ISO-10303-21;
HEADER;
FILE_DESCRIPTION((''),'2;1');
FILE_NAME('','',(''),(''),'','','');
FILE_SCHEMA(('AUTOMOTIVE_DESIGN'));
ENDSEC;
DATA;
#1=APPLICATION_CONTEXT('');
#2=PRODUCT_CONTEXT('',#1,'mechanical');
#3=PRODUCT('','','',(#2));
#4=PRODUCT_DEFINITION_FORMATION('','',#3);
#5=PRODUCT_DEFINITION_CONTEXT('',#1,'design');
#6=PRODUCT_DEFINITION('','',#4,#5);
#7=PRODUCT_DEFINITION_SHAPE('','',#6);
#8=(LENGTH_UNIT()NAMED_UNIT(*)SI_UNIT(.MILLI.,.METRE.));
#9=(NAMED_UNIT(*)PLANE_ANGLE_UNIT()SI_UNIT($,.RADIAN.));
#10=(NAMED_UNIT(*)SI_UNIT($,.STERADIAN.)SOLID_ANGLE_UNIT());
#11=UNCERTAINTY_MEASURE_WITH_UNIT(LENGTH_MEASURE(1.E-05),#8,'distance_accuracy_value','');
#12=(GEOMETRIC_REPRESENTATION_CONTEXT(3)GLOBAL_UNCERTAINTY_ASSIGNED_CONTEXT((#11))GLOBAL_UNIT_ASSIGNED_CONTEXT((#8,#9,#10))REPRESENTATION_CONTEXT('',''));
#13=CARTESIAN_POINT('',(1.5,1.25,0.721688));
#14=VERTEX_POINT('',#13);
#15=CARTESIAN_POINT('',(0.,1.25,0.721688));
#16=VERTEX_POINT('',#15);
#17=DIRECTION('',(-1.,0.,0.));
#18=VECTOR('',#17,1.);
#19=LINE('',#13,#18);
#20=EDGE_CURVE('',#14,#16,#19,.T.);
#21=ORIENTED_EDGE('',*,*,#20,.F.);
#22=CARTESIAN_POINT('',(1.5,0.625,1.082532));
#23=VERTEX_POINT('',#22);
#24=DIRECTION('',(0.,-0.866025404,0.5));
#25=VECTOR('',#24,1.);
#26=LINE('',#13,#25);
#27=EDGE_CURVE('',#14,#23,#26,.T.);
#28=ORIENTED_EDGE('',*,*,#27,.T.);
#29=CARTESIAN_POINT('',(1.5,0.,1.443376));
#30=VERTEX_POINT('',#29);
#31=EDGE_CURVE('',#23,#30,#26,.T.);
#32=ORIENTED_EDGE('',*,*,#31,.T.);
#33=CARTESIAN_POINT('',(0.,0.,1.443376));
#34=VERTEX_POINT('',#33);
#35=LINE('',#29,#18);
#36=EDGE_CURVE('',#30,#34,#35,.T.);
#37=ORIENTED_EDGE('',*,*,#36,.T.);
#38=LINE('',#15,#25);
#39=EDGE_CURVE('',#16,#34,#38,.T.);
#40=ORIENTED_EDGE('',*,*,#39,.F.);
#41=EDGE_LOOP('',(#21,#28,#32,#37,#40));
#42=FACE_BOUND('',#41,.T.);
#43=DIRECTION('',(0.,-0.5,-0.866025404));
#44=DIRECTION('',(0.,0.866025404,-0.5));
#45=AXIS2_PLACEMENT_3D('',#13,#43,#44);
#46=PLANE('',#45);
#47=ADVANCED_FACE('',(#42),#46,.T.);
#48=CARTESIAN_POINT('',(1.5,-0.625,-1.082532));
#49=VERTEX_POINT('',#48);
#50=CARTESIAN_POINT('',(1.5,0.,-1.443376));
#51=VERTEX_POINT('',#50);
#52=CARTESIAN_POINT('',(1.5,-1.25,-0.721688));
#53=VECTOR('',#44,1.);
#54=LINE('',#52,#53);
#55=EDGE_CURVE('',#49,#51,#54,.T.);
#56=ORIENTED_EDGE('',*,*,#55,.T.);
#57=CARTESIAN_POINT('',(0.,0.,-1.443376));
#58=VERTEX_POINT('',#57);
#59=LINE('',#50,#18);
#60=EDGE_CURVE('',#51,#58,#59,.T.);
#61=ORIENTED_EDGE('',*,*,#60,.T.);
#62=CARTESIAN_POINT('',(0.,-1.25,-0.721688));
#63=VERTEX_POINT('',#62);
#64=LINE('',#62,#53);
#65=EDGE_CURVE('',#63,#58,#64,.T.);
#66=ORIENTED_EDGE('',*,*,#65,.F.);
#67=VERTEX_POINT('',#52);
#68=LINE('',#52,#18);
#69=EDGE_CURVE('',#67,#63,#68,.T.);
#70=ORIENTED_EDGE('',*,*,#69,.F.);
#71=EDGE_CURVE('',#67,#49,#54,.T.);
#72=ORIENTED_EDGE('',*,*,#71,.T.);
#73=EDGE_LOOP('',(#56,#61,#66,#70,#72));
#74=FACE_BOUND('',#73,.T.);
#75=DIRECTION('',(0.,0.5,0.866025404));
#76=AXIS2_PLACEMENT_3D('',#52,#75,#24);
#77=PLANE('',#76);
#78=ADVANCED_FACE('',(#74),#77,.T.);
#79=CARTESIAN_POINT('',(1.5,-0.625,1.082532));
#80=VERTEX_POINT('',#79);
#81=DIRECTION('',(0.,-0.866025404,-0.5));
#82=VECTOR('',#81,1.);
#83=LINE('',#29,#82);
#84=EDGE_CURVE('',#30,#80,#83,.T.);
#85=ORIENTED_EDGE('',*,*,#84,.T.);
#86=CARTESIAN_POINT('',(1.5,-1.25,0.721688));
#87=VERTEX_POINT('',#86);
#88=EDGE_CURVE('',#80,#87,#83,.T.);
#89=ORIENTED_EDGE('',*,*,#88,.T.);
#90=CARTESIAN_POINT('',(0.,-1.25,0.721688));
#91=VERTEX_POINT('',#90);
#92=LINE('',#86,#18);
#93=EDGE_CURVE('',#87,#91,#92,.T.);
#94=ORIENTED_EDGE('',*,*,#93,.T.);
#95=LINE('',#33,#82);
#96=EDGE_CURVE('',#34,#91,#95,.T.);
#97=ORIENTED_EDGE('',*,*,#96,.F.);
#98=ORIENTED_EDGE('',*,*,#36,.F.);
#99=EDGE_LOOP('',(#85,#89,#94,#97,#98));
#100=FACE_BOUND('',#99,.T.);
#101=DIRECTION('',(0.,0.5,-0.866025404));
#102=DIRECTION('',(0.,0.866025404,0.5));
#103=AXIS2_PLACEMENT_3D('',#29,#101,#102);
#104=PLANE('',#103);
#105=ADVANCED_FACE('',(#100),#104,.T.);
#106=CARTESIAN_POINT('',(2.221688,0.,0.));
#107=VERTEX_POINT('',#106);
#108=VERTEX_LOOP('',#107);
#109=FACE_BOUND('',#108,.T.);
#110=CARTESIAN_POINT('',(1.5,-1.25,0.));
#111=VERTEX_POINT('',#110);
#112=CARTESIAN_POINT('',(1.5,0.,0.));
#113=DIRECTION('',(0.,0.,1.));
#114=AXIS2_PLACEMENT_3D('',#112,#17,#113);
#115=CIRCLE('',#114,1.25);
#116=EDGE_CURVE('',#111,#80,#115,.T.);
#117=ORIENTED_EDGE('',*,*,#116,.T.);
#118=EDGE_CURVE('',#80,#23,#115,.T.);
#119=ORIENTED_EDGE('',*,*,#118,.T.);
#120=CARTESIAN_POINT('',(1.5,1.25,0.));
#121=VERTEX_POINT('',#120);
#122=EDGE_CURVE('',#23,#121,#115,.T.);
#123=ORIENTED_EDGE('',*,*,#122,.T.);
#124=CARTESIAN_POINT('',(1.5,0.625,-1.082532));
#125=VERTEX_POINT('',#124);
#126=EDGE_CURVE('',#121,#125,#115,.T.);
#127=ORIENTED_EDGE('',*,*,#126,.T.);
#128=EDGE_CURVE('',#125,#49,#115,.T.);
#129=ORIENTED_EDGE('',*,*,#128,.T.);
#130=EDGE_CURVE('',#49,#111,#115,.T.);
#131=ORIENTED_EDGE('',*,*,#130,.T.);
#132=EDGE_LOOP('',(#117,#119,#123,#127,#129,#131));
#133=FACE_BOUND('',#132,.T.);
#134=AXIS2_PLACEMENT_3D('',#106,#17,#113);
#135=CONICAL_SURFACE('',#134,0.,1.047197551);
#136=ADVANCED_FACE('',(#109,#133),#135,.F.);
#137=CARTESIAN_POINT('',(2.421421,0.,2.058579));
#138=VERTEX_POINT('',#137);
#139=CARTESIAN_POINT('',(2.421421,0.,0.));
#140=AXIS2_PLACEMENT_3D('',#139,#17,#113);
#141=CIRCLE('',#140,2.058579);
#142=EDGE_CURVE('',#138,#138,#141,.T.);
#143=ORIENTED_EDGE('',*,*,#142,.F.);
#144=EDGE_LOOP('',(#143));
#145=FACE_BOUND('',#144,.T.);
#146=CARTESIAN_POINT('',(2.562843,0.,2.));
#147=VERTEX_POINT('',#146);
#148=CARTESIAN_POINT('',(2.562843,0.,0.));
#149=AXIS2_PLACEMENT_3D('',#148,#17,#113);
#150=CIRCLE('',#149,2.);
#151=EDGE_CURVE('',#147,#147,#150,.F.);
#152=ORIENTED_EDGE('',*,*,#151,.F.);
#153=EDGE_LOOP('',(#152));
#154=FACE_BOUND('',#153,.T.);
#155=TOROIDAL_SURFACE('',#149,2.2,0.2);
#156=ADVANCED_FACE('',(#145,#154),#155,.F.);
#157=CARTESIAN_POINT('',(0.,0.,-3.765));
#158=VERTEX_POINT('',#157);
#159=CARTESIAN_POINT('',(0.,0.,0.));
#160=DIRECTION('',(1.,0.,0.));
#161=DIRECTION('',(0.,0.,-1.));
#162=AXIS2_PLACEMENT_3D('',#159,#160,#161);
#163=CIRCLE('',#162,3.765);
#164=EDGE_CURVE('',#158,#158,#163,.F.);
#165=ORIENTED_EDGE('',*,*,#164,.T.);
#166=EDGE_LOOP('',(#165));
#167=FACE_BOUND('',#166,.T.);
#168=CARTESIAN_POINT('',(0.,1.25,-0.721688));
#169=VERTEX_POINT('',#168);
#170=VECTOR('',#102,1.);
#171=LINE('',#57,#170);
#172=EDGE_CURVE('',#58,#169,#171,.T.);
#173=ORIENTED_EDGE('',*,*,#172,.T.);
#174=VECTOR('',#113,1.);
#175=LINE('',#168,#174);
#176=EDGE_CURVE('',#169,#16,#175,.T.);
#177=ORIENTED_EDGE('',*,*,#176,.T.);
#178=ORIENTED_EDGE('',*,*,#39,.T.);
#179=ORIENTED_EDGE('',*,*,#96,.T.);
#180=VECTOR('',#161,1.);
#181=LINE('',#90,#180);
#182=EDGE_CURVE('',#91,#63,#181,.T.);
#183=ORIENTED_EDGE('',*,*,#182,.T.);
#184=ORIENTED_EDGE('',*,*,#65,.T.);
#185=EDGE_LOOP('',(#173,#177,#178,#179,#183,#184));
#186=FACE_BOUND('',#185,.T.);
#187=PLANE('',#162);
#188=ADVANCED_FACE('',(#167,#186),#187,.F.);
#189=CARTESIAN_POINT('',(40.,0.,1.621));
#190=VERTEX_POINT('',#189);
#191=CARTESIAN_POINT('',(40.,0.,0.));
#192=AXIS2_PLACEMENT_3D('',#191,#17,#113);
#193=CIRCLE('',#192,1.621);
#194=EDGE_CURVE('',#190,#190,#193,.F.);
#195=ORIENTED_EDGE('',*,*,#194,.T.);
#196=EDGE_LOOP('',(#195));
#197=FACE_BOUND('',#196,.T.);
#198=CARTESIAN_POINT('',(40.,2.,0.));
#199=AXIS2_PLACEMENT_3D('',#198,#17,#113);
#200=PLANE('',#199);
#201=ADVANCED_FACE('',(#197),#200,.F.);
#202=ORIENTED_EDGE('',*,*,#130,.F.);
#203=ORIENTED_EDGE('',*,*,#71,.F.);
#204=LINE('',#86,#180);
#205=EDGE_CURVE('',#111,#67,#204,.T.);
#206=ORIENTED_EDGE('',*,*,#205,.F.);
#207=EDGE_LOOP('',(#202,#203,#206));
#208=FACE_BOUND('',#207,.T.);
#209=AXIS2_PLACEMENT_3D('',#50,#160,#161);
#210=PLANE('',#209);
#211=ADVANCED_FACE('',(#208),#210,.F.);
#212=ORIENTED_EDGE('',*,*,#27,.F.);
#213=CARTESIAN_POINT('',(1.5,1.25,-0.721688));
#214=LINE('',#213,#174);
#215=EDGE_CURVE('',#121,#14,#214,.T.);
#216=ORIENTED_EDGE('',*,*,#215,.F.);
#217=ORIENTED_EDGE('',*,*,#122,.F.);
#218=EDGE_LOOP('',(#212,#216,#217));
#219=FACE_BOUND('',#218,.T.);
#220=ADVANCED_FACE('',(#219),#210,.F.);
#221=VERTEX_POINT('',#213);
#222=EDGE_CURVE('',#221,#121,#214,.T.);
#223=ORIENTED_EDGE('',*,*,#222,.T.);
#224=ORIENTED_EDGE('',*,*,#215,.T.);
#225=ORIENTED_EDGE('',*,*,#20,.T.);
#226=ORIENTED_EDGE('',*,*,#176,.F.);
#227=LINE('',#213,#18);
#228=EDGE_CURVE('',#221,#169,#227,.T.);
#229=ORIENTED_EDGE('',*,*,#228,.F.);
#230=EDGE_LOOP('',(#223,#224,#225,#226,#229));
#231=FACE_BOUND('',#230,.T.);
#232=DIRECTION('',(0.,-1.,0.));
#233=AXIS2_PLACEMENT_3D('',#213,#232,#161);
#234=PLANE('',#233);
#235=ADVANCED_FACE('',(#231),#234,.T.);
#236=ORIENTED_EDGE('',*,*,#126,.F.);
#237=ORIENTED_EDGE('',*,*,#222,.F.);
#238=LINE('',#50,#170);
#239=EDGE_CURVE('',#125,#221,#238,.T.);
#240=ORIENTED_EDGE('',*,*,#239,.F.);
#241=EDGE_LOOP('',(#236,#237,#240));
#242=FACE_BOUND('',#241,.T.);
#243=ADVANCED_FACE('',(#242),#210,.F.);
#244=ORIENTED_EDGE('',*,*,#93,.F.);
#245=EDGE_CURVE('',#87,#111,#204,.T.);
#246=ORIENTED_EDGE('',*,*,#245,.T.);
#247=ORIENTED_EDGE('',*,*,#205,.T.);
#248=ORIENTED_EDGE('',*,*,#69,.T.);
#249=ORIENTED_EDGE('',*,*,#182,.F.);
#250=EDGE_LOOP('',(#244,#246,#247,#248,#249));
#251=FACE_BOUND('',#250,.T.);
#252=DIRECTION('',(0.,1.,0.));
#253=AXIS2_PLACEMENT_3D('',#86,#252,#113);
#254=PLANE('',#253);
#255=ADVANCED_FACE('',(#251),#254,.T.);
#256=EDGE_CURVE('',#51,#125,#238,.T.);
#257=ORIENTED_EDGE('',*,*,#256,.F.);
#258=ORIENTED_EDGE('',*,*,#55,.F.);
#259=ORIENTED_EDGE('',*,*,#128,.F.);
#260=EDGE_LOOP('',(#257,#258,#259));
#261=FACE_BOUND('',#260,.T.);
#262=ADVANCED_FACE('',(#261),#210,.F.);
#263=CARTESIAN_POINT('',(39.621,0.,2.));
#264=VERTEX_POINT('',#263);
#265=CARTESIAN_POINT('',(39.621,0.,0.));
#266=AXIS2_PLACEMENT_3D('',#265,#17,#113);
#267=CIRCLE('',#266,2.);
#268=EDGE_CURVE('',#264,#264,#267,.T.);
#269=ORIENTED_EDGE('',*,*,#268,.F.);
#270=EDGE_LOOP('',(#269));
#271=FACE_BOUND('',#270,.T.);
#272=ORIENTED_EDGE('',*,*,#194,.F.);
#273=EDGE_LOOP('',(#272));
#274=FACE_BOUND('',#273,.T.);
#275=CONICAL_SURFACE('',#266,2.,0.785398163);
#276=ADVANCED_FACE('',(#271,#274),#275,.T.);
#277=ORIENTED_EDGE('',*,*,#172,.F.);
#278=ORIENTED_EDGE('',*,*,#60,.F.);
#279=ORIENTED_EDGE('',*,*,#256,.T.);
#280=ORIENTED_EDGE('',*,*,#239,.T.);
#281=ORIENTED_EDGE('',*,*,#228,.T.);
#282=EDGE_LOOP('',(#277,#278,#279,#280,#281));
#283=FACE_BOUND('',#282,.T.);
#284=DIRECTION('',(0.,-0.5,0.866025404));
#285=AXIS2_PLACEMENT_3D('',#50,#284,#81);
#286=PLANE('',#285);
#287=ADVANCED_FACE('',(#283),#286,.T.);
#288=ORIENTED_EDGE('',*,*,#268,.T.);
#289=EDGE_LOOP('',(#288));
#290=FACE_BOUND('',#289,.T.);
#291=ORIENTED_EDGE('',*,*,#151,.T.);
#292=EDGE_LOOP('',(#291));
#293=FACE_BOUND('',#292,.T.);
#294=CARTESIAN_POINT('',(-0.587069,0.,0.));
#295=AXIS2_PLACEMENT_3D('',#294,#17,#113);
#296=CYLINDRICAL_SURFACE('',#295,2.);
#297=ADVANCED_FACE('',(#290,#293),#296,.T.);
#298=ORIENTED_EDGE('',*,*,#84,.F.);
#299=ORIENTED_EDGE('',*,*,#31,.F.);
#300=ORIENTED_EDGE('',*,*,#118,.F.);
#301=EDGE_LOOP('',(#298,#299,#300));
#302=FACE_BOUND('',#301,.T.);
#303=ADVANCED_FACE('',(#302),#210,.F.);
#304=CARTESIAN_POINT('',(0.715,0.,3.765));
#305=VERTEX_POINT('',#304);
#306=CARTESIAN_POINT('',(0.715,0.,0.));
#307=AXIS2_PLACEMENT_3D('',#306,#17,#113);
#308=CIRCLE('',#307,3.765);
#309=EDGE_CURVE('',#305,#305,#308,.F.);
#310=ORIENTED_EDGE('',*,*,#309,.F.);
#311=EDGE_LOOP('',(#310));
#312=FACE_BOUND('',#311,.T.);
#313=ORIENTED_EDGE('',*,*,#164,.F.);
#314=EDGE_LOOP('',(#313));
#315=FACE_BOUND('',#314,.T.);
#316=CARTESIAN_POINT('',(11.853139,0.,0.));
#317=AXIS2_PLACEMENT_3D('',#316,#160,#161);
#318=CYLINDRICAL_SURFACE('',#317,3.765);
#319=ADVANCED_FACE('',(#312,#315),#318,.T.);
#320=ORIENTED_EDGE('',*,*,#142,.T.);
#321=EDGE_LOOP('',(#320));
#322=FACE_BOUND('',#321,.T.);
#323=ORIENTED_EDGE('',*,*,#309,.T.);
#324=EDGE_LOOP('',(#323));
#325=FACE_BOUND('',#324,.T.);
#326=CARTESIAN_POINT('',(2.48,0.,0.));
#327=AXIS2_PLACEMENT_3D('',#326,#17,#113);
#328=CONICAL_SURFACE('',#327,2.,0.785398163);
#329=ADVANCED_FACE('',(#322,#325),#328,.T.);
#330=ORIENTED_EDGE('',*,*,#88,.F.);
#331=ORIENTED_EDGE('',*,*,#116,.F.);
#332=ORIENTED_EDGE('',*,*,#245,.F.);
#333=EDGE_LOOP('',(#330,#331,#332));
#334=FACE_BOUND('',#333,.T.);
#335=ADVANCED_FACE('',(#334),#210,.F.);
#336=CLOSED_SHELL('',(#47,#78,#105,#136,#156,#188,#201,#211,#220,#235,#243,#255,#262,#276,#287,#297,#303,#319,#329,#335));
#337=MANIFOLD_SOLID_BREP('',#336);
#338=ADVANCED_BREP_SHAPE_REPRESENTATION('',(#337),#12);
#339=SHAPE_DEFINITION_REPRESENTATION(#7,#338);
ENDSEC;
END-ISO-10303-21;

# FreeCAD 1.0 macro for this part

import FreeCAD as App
import Part
import Sketcher

V = App.Vector
Q = App.Units.Quantity


def edges_at(feature, points):
    """Names of the edges that pass closest to the given points."""
    edges = feature.Shape.Edges
    near = lambda p: min(range(len(edges)), key=lambda i: edges[i].distToShape(Part.Vertex(*p))[0])
    return sorted({f"Edge{near(p) + 1}" for p in points})

doc = App.newDocument("Part")
body = doc.addObject("PartDesign::Body", "Body")

sketch1 = body.newObject("Sketcher::SketchObject", "Sketch")
sketch1.AttachmentSupport = (doc.getObject("XY_Plane"), [""])
sketch1.MapMode = "FlatFace"
sketch1.addGeometry([
    Part.LineSegment(V(0, 4.5, 0), V(0, 0, 0)),
    Part.LineSegment(V(0, 0, 0), V(40, 0, 0)),
    Part.LineSegment(V(40, 0, 0), V(40, 2, 0)),
    Part.LineSegment(V(40, 2, 0), V(2.5, 2, 0)),
    Part.LineSegment(V(2.5, 2, 0), V(0, 4.5, 0)),
], False)
sketch1.addConstraint([
    Sketcher.Constraint("Coincident", 0, 2, 1, 1),
    Sketcher.Constraint("Coincident", 1, 2, 2, 1),
    Sketcher.Constraint("Coincident", 2, 2, 3, 1),
    Sketcher.Constraint("Coincident", 3, 2, 4, 1),
    Sketcher.Constraint("Coincident", 4, 2, 0, 1),
    Sketcher.Constraint("Vertical", 0),
    Sketcher.Constraint("Horizontal", 1),
    Sketcher.Constraint("Vertical", 2),
    Sketcher.Constraint("Horizontal", 3),
    Sketcher.Constraint("Coincident", 0, 2, -1, 1),
    Sketcher.Constraint("DistanceX", 1, 1, 1, 2, Q("40 mm")),
    Sketcher.Constraint("DistanceY", 2, 1, 2, 2, Q("2 mm")),
    Sketcher.Constraint("Angle", 4, Q("135 deg")),
    Sketcher.Constraint("DistanceX", 3, 2, 3, 1, Q("37.52 mm")),
])
revolution = body.newObject("PartDesign::Revolution", "Revolution")
revolution.Profile = sketch1
revolution.ReferenceAxis = (sketch1, ["H_Axis"])
revolution.Angle = 360

sketch2 = body.newObject("Sketcher::SketchObject", "Sketch001")
sketch2.AttachmentSupport = (doc.getObject("YZ_Plane"), [""])
sketch2.MapMode = "FlatFace"
sketch2.addGeometry([
    Part.LineSegment(V(0, -1.4, 0), V(1.2, -0.7, 0)),
    Part.LineSegment(V(1.2, -0.7, 0), V(1.2, 0.7, 0)),
    Part.LineSegment(V(1.2, 0.7, 0), V(0, 1.4, 0)),
    Part.LineSegment(V(0, 1.4, 0), V(-1.2, 0.7, 0)),
    Part.LineSegment(V(-1.2, 0.7, 0), V(-1.2, -0.7, 0)),
    Part.LineSegment(V(-1.2, -0.7, 0), V(0, -1.4, 0)),
], False)
sketch2.addConstraint([
    Sketcher.Constraint("Coincident", 0, 2, 1, 1),
    Sketcher.Constraint("Coincident", 1, 2, 2, 1),
    Sketcher.Constraint("Coincident", 2, 2, 3, 1),
    Sketcher.Constraint("Coincident", 3, 2, 4, 1),
    Sketcher.Constraint("Coincident", 4, 2, 5, 1),
    Sketcher.Constraint("Coincident", 5, 2, 0, 1),
    Sketcher.Constraint("Vertical", 1),
    Sketcher.Constraint("Vertical", 4),
    Sketcher.Constraint("Symmetric", 0, 2, 3, 2, -1, 1),
    Sketcher.Constraint("Symmetric", 2, 2, 5, 2, -1, 1),
    Sketcher.Constraint("PointOnObject", 2, 2, -2),
    Sketcher.Constraint("Parallel", 2, 5),
    Sketcher.Constraint("Horizontal", 1, 2, 3, 2),
    Sketcher.Constraint("Angle", 0, Q("30 deg")),
    Sketcher.Constraint("DistanceX", 3, 2, 1, 2, Q("2.5 mm")),
    Sketcher.Constraint("DistanceY", 1, 1, 1, 2, Q("1.443376 mm")),
])
pocket1 = body.newObject("PartDesign::Pocket", "Pocket")
pocket1.Profile = sketch2
pocket1.Length = 1.5
pocket1.Reversed = True

sketch3 = body.newObject("Sketcher::SketchObject", "Sketch002")
sketch3.AttachmentSupport = (doc.getObject("XY_Plane"), [""])
sketch3.MapMode = "FlatFace"
sketch3.addGeometry([
    Part.LineSegment(V(2.2, 0, 0), V(1.5, 1.2, 0)),
    Part.LineSegment(V(1.5, 1.2, 0), V(1.5, 0, 0)),
    Part.LineSegment(V(1.5, 0, 0), V(2.2, 0, 0)),
], False)
sketch3.addConstraint([
    Sketcher.Constraint("Coincident", 0, 2, 1, 1),
    Sketcher.Constraint("Coincident", 1, 2, 2, 1),
    Sketcher.Constraint("Coincident", 2, 2, 0, 1),
    Sketcher.Constraint("Vertical", 1),
    Sketcher.Constraint("Horizontal", 2),
    Sketcher.Constraint("PointOnObject", 1, 2, -1),
    Sketcher.Constraint("Angle", 0, Q("120 deg")),
    Sketcher.Constraint("DistanceY", 1, 2, 1, 1, Q("1.25 mm")),
    Sketcher.Constraint("DistanceX", -1, 1, 0, 2, Q("1.5 mm")),
])
groove = body.newObject("PartDesign::Groove", "Groove")
groove.Profile = sketch3
groove.ReferenceAxis = (sketch3, ["H_Axis"])
groove.Angle = 360
doc.recompute()

fillet = body.newObject("PartDesign::Fillet", "Fillet")
fillet.Base = (groove, edges_at(groove, [(2.48, 0, -2)]))
fillet.Radius = 0.2
doc.recompute()

chamfer = body.newObject("PartDesign::Chamfer", "Chamfer")
chamfer.Base = (fillet, edges_at(fillet, [(40, 0, -2)]))
chamfer.Size = 0.379

sketch4 = body.newObject("Sketcher::SketchObject", "Sketch003")
sketch4.AttachmentSupport = (doc.getObject("XZ_Plane"), [""])
sketch4.MapMode = "FlatFace"
sketch4.addGeometry([
    Part.LineSegment(V(-2, -9, 0), V(-2, -4, 0)),
    Part.LineSegment(V(-2, -4, 0), V(3, -4, 0)),
    Part.LineSegment(V(3, -4, 0), V(3, -9, 0)),
    Part.LineSegment(V(3, -9, 0), V(-2, -9, 0)),
], False)
sketch4.addConstraint([
    Sketcher.Constraint("Coincident", 0, 2, 1, 1),
    Sketcher.Constraint("Coincident", 1, 2, 2, 1),
    Sketcher.Constraint("Coincident", 2, 2, 3, 1),
    Sketcher.Constraint("Coincident", 3, 2, 0, 1),
    Sketcher.Constraint("Vertical", 0),
    Sketcher.Constraint("Horizontal", 1),
    Sketcher.Constraint("Vertical", 2),
    Sketcher.Constraint("Horizontal", 3),
    Sketcher.Constraint("Equal", 3, 0),
    Sketcher.Constraint("DistanceX", 1, 1, 1, 2, Q("5 mm")),
    Sketcher.Constraint("DistanceX", 0, 2, -1, 1, Q("2 mm")),
    Sketcher.Constraint("DistanceY", 0, 2, -1, 1, Q("3.765 mm")),
])
groove2 = body.newObject("PartDesign::Groove", "Groove001")
groove2.Profile = sketch4
groove2.ReferenceAxis = (sketch4, ["H_Axis"])
groove2.Angle = 360

doc.recompute()
